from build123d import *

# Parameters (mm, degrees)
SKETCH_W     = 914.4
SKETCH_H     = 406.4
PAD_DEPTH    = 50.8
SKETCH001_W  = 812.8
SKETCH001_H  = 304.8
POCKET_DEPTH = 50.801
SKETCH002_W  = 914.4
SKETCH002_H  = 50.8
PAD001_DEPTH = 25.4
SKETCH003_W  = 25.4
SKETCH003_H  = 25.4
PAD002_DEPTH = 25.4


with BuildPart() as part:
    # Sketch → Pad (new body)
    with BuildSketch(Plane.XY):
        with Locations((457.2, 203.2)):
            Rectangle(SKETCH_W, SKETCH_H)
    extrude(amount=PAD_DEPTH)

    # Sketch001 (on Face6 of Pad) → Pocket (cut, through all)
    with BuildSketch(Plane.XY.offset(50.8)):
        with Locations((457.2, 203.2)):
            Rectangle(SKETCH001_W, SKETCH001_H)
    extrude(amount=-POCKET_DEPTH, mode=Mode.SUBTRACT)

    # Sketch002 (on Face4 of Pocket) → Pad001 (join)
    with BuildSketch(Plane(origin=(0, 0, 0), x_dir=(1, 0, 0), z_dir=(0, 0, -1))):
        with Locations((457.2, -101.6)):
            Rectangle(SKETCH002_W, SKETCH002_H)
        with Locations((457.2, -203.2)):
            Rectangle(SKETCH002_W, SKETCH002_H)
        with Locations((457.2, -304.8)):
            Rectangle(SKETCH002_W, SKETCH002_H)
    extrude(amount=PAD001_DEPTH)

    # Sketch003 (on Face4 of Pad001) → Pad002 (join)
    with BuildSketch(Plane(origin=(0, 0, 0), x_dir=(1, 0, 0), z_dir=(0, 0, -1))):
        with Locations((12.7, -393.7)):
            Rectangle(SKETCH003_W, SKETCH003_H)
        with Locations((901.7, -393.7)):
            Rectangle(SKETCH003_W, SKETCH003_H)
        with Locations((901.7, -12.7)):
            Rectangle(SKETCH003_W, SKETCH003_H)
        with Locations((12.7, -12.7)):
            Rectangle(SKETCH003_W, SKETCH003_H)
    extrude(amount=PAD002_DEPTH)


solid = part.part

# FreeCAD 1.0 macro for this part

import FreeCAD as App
import Part
import Sketcher
Q = App.Units.Quantity

doc = App.newDocument("Part")
params = doc.addObject("Spreadsheet::Sheet", "Params")
for row, (alias, value) in enumerate([
    ("sketch1_width", "36 in"),
    ("sketch1_height", "16 in"),
    ("pad1_length", "2 in"),
    ("sketch2_width", "32 in"),
    ("sketch2_height", "12 in"),
    ("sketch3_width", "36 in"),
    ("sketch3_height", "2 in"),
    ("pad2_length", "1 in"),
    ("sketch4_width", "1 in"),
    ("pad3_length", "1 in"),
], start=1):
    params.set(f"A{row}", alias)
    params.set(f"B{row}", "=" + value)
    params.setAlias(f"B{row}", alias)

body = doc.addObject("PartDesign::Body", "Body")

sketch1 = body.newObject("Sketcher::SketchObject", "Sketch")
sketch1.AttachmentSupport = (doc.getObject("XY_Plane"), [""])
sketch1.MapMode = "FlatFace"
sketch1.addGeometry(Part.LineSegment(App.Vector(0, 406.4, 0), App.Vector(0, 0, 0)), False)
sketch1.addGeometry(Part.LineSegment(App.Vector(0, 0, 0), App.Vector(914.4, 0, 0)), False)
sketch1.addGeometry(Part.LineSegment(App.Vector(914.4, 0, 0), App.Vector(914.4, 406.4, 0)), False)
sketch1.addGeometry(Part.LineSegment(App.Vector(914.4, 406.4, 0), App.Vector(0, 406.4, 0)), False)
sketch1.addConstraint(Sketcher.Constraint("Coincident", 0, 2, 1, 1))
sketch1.addConstraint(Sketcher.Constraint("Coincident", 1, 2, 2, 1))
sketch1.addConstraint(Sketcher.Constraint("Coincident", 2, 2, 3, 1))
sketch1.addConstraint(Sketcher.Constraint("Coincident", 3, 2, 0, 1))
sketch1.addConstraint(Sketcher.Constraint("Vertical", 0))
sketch1.addConstraint(Sketcher.Constraint("Horizontal", 1))
sketch1.addConstraint(Sketcher.Constraint("Vertical", 2))
sketch1.addConstraint(Sketcher.Constraint("Horizontal", 3))
sketch1.addConstraint(Sketcher.Constraint("Coincident", 0, 2, -1, 1))
sketch1.addConstraint(Sketcher.Constraint("DistanceX", 1, 1, 1, 2, Q("36 in")))
sketch1.addConstraint(Sketcher.Constraint("DistanceY", 0, 2, 0, 1, Q("16 in")))
sketch1.setExpression("Constraints[9]", "Params.sketch1_width")
sketch1.setExpression("Constraints[10]", "Params.sketch1_height")
pad1 = body.newObject("PartDesign::Pad", "Pad")
pad1.Profile = sketch1
pad1.setExpression("Length", "Params.pad1_length")

sketch2 = body.newObject("Sketcher::SketchObject", "Sketch001")
sketch2.AttachmentSupport = (doc.getObject("XY_Plane"), [""])
sketch2.MapMode = "FlatFace"
sketch2.AttachmentOffset = App.Placement(App.Vector(0, 0, 2 * 25.4), App.Rotation())
sketch2.addGeometry(Part.LineSegment(App.Vector(50.8, 355.6, 0), App.Vector(50.8, 50.8, 0)), False)
sketch2.addGeometry(Part.LineSegment(App.Vector(50.8, 50.8, 0), App.Vector(863.6, 50.8, 0)), False)
sketch2.addGeometry(Part.LineSegment(App.Vector(863.6, 50.8, 0), App.Vector(863.6, 355.6, 0)), False)
sketch2.addGeometry(Part.LineSegment(App.Vector(863.6, 355.6, 0), App.Vector(50.8, 355.6, 0)), False)
sketch2.addConstraint(Sketcher.Constraint("Coincident", 0, 2, 1, 1))
sketch2.addConstraint(Sketcher.Constraint("Coincident", 1, 2, 2, 1))
sketch2.addConstraint(Sketcher.Constraint("Coincident", 2, 2, 3, 1))
sketch2.addConstraint(Sketcher.Constraint("Coincident", 3, 2, 0, 1))
sketch2.addConstraint(Sketcher.Constraint("Vertical", 0))
sketch2.addConstraint(Sketcher.Constraint("Horizontal", 1))
sketch2.addConstraint(Sketcher.Constraint("Vertical", 2))
sketch2.addConstraint(Sketcher.Constraint("Horizontal", 3))
sketch2.addConstraint(Sketcher.Constraint("DistanceX", 1, 1, 1, 2, Q("32 in")))
sketch2.addConstraint(Sketcher.Constraint("DistanceY", 0, 2, 0, 1, Q("12 in")))
sketch2.addConstraint(Sketcher.Constraint("DistanceX", -1, 1, 0, 2, Q("2 in")))
sketch2.addConstraint(Sketcher.Constraint("DistanceY", -1, 1, 0, 2, Q("2 in")))
sketch2.setExpression("Constraints[8]", "Params.sketch2_width")
sketch2.setExpression("Constraints[9]", "Params.sketch2_height")
pocket1 = body.newObject("PartDesign::Pocket", "Pocket")
pocket1.Profile = sketch2
pocket1.Type = "ThroughAll"

sketch3 = body.newObject("Sketcher::SketchObject", "Sketch002")
sketch3.AttachmentSupport = (doc.getObject("XY_Plane"), [""])
sketch3.MapMode = "FlatFace"
sketch3.addGeometry(Part.LineSegment(App.Vector(0, 76.2, 0), App.Vector(0, 127, 0)), False)
sketch3.addGeometry(Part.LineSegment(App.Vector(0, 127, 0), App.Vector(914.4, 127, 0)), False)
sketch3.addGeometry(Part.LineSegment(App.Vector(914.4, 127, 0), App.Vector(914.4, 76.2, 0)), False)
sketch3.addGeometry(Part.LineSegment(App.Vector(914.4, 76.2, 0), App.Vector(0, 76.2, 0)), False)
sketch3.addGeometry(Part.LineSegment(App.Vector(0, 177.8, 0), App.Vector(0, 228.6, 0)), False)
sketch3.addGeometry(Part.LineSegment(App.Vector(0, 228.6, 0), App.Vector(914.4, 228.6, 0)), False)
sketch3.addGeometry(Part.LineSegment(App.Vector(914.4, 228.6, 0), App.Vector(914.4, 177.8, 0)), False)
sketch3.addGeometry(Part.LineSegment(App.Vector(914.4, 177.8, 0), App.Vector(0, 177.8, 0)), False)
sketch3.addGeometry(Part.LineSegment(App.Vector(0, 279.4, 0), App.Vector(0, 330.2, 0)), False)
sketch3.addGeometry(Part.LineSegment(App.Vector(0, 330.2, 0), App.Vector(914.4, 330.2, 0)), False)
sketch3.addGeometry(Part.LineSegment(App.Vector(914.4, 330.2, 0), App.Vector(914.4, 279.4, 0)), False)
sketch3.addGeometry(Part.LineSegment(App.Vector(914.4, 279.4, 0), App.Vector(0, 279.4, 0)), False)
sketch3.addConstraint(Sketcher.Constraint("Coincident", 0, 2, 1, 1))
sketch3.addConstraint(Sketcher.Constraint("Coincident", 1, 2, 2, 1))
sketch3.addConstraint(Sketcher.Constraint("Coincident", 2, 2, 3, 1))
sketch3.addConstraint(Sketcher.Constraint("Coincident", 3, 2, 0, 1))
sketch3.addConstraint(Sketcher.Constraint("Coincident", 4, 2, 5, 1))
sketch3.addConstraint(Sketcher.Constraint("Coincident", 5, 2, 6, 1))
sketch3.addConstraint(Sketcher.Constraint("Coincident", 6, 2, 7, 1))
sketch3.addConstraint(Sketcher.Constraint("Coincident", 7, 2, 4, 1))
sketch3.addConstraint(Sketcher.Constraint("Coincident", 8, 2, 9, 1))
sketch3.addConstraint(Sketcher.Constraint("Coincident", 9, 2, 10, 1))
sketch3.addConstraint(Sketcher.Constraint("Coincident", 10, 2, 11, 1))
sketch3.addConstraint(Sketcher.Constraint("Coincident", 11, 2, 8, 1))
sketch3.addConstraint(Sketcher.Constraint("Vertical", 0))
sketch3.addConstraint(Sketcher.Constraint("Horizontal", 1))
sketch3.addConstraint(Sketcher.Constraint("Vertical", 2))
sketch3.addConstraint(Sketcher.Constraint("Horizontal", 3))
sketch3.addConstraint(Sketcher.Constraint("Vertical", 4))
sketch3.addConstraint(Sketcher.Constraint("Horizontal", 5))
sketch3.addConstraint(Sketcher.Constraint("Vertical", 6))
sketch3.addConstraint(Sketcher.Constraint("Horizontal", 7))
sketch3.addConstraint(Sketcher.Constraint("Vertical", 8))
sketch3.addConstraint(Sketcher.Constraint("Horizontal", 9))
sketch3.addConstraint(Sketcher.Constraint("Vertical", 10))
sketch3.addConstraint(Sketcher.Constraint("Horizontal", 11))
sketch3.addConstraint(Sketcher.Constraint("PointOnObject", 0, 2, -2))
sketch3.addConstraint(Sketcher.Constraint("PointOnObject", 4, 2, -2))
sketch3.addConstraint(Sketcher.Constraint("PointOnObject", 8, 2, -2))
sketch3.addConstraint(Sketcher.Constraint("Vertical", 2, 2, 5, 2))
sketch3.addConstraint(Sketcher.Constraint("Vertical", 6, 2, 9, 2))
sketch3.addConstraint(Sketcher.Constraint("Equal", 2, 4))
sketch3.addConstraint(Sketcher.Constraint("Equal", 6, 8))
sketch3.addConstraint(Sketcher.Constraint("DistanceX", 1, 1, 1, 2, Q("36 in")))
sketch3.addConstraint(Sketcher.Constraint("DistanceY", 0, 1, 0, 2, Q("2 in")))
sketch3.addConstraint(Sketcher.Constraint("DistanceY", -1, 1, 0, 2, Q("5 in")))
sketch3.addConstraint(Sketcher.Constraint("DistanceY", -1, 1, 4, 2, Q("9 in")))
sketch3.addConstraint(Sketcher.Constraint("DistanceY", -1, 1, 8, 2, Q("13 in")))
sketch3.setExpression("Constraints[31]", "Params.sketch3_width")
sketch3.setExpression("Constraints[32]", "Params.sketch3_height")
pad2 = body.newObject("PartDesign::Pad", "Pad001")
pad2.Profile = sketch3
pad2.setExpression("Length", "Params.pad2_length")
pad2.Reversed = True

sketch4 = body.newObject("Sketcher::SketchObject", "Sketch003")
sketch4.AttachmentSupport = (doc.getObject("XY_Plane"), [""])
sketch4.MapMode = "FlatFace"
sketch4.addGeometry(Part.LineSegment(App.Vector(0, 381, 0), App.Vector(0, 406.4, 0)), False)
sketch4.addGeometry(Part.LineSegment(App.Vector(0, 406.4, 0), App.Vector(25.4, 406.4, 0)), False)
sketch4.addGeometry(Part.LineSegment(App.Vector(25.4, 406.4, 0), App.Vector(25.4, 381, 0)), False)
sketch4.addGeometry(Part.LineSegment(App.Vector(25.4, 381, 0), App.Vector(0, 381, 0)), False)
sketch4.addGeometry(Part.LineSegment(App.Vector(889, 381, 0), App.Vector(889, 406.4, 0)), False)
sketch4.addGeometry(Part.LineSegment(App.Vector(889, 406.4, 0), App.Vector(914.4, 406.4, 0)), False)
sketch4.addGeometry(Part.LineSegment(App.Vector(914.4, 406.4, 0), App.Vector(914.4, 381, 0)), False)
sketch4.addGeometry(Part.LineSegment(App.Vector(914.4, 381, 0), App.Vector(889, 381, 0)), False)
sketch4.addGeometry(Part.LineSegment(App.Vector(889, 0, 0), App.Vector(889, 25.4, 0)), False)
sketch4.addGeometry(Part.LineSegment(App.Vector(889, 25.4, 0), App.Vector(914.4, 25.4, 0)), False)
sketch4.addGeometry(Part.LineSegment(App.Vector(914.4, 25.4, 0), App.Vector(914.4, 0, 0)), False)
sketch4.addGeometry(Part.LineSegment(App.Vector(914.4, 0, 0), App.Vector(889, 0, 0)), False)
sketch4.addGeometry(Part.LineSegment(App.Vector(0, 0, 0), App.Vector(0, 25.4, 0)), False)
sketch4.addGeometry(Part.LineSegment(App.Vector(0, 25.4, 0), App.Vector(25.4, 25.4, 0)), False)
sketch4.addGeometry(Part.LineSegment(App.Vector(25.4, 25.4, 0), App.Vector(25.4, 0, 0)), False)
sketch4.addGeometry(Part.LineSegment(App.Vector(25.4, 0, 0), App.Vector(0, 0, 0)), False)
sketch4.addConstraint(Sketcher.Constraint("Coincident", 0, 2, 1, 1))
sketch4.addConstraint(Sketcher.Constraint("Coincident", 1, 2, 2, 1))
sketch4.addConstraint(Sketcher.Constraint("Coincident", 2, 2, 3, 1))
sketch4.addConstraint(Sketcher.Constraint("Coincident", 3, 2, 0, 1))
sketch4.addConstraint(Sketcher.Constraint("Coincident", 4, 2, 5, 1))
sketch4.addConstraint(Sketcher.Constraint("Coincident", 5, 2, 6, 1))
sketch4.addConstraint(Sketcher.Constraint("Coincident", 6, 2, 7, 1))
sketch4.addConstraint(Sketcher.Constraint("Coincident", 7, 2, 4, 1))
sketch4.addConstraint(Sketcher.Constraint("Coincident", 8, 2, 9, 1))
sketch4.addConstraint(Sketcher.Constraint("Coincident", 9, 2, 10, 1))
sketch4.addConstraint(Sketcher.Constraint("Coincident", 10, 2, 11, 1))
sketch4.addConstraint(Sketcher.Constraint("Coincident", 11, 2, 8, 1))
sketch4.addConstraint(Sketcher.Constraint("Coincident", 12, 2, 13, 1))
sketch4.addConstraint(Sketcher.Constraint("Coincident", 13, 2, 14, 1))
sketch4.addConstraint(Sketcher.Constraint("Coincident", 14, 2, 15, 1))
sketch4.addConstraint(Sketcher.Constraint("Coincident", 15, 2, 12, 1))
sketch4.addConstraint(Sketcher.Constraint("Vertical", 0))
sketch4.addConstraint(Sketcher.Constraint("Horizontal", 1))
sketch4.addConstraint(Sketcher.Constraint("Vertical", 2))
sketch4.addConstraint(Sketcher.Constraint("Horizontal", 3))
sketch4.addConstraint(Sketcher.Constraint("Vertical", 4))
sketch4.addConstraint(Sketcher.Constraint("Horizontal", 5))
sketch4.addConstraint(Sketcher.Constraint("Vertical", 6))
sketch4.addConstraint(Sketcher.Constraint("Horizontal", 7))
sketch4.addConstraint(Sketcher.Constraint("Vertical", 8))
sketch4.addConstraint(Sketcher.Constraint("Horizontal", 9))
sketch4.addConstraint(Sketcher.Constraint("Vertical", 10))
sketch4.addConstraint(Sketcher.Constraint("Horizontal", 11))
sketch4.addConstraint(Sketcher.Constraint("Vertical", 12))
sketch4.addConstraint(Sketcher.Constraint("Horizontal", 13))
sketch4.addConstraint(Sketcher.Constraint("Vertical", 14))
sketch4.addConstraint(Sketcher.Constraint("Horizontal", 15))
sketch4.addConstraint(Sketcher.Constraint("Coincident", 15, 2, -1, 1))
sketch4.addConstraint(Sketcher.Constraint("PointOnObject", 0, 2, -2))
sketch4.addConstraint(Sketcher.Constraint("PointOnObject", 10, 2, -1))
sketch4.addConstraint(Sketcher.Constraint("Horizontal", 1, 2, 4, 2))
sketch4.addConstraint(Sketcher.Constraint("Horizontal", 3, 2, 6, 2))
sketch4.addConstraint(Sketcher.Constraint("Horizontal", 9, 2, 12, 2))
sketch4.addConstraint(Sketcher.Constraint("Vertical", 7, 2, 8, 2))
sketch4.addConstraint(Sketcher.Constraint("Vertical", 6, 2, 9, 2))
sketch4.addConstraint(Sketcher.Constraint("Vertical", 2, 2, 13, 2))
sketch4.addConstraint(Sketcher.Constraint("Equal", 3, 5))
sketch4.addConstraint(Sketcher.Constraint("Equal", 15, 0))
sketch4.addConstraint(Sketcher.Constraint("Equal", 6, 8))
sketch4.addConstraint(Sketcher.Constraint("DistanceX", 1, 1, 1, 2, Q("1 in")))
sketch4.addConstraint(Sketcher.Constraint("DistanceY", -1, 1, 0, 2, Q("16 in")))
sketch4.addConstraint(Sketcher.Constraint("DistanceX", -1, 1, 4, 2, Q("35 in")))
sketch4.setExpression("Constraints[44]", "Params.sketch4_width")
pad3 = body.newObject("PartDesign::Pad", "Pad002")
pad3.Profile = sketch4
pad3.setExpression("Length", "Params.pad3_length")
pad3.Reversed = True

doc.recompute()
